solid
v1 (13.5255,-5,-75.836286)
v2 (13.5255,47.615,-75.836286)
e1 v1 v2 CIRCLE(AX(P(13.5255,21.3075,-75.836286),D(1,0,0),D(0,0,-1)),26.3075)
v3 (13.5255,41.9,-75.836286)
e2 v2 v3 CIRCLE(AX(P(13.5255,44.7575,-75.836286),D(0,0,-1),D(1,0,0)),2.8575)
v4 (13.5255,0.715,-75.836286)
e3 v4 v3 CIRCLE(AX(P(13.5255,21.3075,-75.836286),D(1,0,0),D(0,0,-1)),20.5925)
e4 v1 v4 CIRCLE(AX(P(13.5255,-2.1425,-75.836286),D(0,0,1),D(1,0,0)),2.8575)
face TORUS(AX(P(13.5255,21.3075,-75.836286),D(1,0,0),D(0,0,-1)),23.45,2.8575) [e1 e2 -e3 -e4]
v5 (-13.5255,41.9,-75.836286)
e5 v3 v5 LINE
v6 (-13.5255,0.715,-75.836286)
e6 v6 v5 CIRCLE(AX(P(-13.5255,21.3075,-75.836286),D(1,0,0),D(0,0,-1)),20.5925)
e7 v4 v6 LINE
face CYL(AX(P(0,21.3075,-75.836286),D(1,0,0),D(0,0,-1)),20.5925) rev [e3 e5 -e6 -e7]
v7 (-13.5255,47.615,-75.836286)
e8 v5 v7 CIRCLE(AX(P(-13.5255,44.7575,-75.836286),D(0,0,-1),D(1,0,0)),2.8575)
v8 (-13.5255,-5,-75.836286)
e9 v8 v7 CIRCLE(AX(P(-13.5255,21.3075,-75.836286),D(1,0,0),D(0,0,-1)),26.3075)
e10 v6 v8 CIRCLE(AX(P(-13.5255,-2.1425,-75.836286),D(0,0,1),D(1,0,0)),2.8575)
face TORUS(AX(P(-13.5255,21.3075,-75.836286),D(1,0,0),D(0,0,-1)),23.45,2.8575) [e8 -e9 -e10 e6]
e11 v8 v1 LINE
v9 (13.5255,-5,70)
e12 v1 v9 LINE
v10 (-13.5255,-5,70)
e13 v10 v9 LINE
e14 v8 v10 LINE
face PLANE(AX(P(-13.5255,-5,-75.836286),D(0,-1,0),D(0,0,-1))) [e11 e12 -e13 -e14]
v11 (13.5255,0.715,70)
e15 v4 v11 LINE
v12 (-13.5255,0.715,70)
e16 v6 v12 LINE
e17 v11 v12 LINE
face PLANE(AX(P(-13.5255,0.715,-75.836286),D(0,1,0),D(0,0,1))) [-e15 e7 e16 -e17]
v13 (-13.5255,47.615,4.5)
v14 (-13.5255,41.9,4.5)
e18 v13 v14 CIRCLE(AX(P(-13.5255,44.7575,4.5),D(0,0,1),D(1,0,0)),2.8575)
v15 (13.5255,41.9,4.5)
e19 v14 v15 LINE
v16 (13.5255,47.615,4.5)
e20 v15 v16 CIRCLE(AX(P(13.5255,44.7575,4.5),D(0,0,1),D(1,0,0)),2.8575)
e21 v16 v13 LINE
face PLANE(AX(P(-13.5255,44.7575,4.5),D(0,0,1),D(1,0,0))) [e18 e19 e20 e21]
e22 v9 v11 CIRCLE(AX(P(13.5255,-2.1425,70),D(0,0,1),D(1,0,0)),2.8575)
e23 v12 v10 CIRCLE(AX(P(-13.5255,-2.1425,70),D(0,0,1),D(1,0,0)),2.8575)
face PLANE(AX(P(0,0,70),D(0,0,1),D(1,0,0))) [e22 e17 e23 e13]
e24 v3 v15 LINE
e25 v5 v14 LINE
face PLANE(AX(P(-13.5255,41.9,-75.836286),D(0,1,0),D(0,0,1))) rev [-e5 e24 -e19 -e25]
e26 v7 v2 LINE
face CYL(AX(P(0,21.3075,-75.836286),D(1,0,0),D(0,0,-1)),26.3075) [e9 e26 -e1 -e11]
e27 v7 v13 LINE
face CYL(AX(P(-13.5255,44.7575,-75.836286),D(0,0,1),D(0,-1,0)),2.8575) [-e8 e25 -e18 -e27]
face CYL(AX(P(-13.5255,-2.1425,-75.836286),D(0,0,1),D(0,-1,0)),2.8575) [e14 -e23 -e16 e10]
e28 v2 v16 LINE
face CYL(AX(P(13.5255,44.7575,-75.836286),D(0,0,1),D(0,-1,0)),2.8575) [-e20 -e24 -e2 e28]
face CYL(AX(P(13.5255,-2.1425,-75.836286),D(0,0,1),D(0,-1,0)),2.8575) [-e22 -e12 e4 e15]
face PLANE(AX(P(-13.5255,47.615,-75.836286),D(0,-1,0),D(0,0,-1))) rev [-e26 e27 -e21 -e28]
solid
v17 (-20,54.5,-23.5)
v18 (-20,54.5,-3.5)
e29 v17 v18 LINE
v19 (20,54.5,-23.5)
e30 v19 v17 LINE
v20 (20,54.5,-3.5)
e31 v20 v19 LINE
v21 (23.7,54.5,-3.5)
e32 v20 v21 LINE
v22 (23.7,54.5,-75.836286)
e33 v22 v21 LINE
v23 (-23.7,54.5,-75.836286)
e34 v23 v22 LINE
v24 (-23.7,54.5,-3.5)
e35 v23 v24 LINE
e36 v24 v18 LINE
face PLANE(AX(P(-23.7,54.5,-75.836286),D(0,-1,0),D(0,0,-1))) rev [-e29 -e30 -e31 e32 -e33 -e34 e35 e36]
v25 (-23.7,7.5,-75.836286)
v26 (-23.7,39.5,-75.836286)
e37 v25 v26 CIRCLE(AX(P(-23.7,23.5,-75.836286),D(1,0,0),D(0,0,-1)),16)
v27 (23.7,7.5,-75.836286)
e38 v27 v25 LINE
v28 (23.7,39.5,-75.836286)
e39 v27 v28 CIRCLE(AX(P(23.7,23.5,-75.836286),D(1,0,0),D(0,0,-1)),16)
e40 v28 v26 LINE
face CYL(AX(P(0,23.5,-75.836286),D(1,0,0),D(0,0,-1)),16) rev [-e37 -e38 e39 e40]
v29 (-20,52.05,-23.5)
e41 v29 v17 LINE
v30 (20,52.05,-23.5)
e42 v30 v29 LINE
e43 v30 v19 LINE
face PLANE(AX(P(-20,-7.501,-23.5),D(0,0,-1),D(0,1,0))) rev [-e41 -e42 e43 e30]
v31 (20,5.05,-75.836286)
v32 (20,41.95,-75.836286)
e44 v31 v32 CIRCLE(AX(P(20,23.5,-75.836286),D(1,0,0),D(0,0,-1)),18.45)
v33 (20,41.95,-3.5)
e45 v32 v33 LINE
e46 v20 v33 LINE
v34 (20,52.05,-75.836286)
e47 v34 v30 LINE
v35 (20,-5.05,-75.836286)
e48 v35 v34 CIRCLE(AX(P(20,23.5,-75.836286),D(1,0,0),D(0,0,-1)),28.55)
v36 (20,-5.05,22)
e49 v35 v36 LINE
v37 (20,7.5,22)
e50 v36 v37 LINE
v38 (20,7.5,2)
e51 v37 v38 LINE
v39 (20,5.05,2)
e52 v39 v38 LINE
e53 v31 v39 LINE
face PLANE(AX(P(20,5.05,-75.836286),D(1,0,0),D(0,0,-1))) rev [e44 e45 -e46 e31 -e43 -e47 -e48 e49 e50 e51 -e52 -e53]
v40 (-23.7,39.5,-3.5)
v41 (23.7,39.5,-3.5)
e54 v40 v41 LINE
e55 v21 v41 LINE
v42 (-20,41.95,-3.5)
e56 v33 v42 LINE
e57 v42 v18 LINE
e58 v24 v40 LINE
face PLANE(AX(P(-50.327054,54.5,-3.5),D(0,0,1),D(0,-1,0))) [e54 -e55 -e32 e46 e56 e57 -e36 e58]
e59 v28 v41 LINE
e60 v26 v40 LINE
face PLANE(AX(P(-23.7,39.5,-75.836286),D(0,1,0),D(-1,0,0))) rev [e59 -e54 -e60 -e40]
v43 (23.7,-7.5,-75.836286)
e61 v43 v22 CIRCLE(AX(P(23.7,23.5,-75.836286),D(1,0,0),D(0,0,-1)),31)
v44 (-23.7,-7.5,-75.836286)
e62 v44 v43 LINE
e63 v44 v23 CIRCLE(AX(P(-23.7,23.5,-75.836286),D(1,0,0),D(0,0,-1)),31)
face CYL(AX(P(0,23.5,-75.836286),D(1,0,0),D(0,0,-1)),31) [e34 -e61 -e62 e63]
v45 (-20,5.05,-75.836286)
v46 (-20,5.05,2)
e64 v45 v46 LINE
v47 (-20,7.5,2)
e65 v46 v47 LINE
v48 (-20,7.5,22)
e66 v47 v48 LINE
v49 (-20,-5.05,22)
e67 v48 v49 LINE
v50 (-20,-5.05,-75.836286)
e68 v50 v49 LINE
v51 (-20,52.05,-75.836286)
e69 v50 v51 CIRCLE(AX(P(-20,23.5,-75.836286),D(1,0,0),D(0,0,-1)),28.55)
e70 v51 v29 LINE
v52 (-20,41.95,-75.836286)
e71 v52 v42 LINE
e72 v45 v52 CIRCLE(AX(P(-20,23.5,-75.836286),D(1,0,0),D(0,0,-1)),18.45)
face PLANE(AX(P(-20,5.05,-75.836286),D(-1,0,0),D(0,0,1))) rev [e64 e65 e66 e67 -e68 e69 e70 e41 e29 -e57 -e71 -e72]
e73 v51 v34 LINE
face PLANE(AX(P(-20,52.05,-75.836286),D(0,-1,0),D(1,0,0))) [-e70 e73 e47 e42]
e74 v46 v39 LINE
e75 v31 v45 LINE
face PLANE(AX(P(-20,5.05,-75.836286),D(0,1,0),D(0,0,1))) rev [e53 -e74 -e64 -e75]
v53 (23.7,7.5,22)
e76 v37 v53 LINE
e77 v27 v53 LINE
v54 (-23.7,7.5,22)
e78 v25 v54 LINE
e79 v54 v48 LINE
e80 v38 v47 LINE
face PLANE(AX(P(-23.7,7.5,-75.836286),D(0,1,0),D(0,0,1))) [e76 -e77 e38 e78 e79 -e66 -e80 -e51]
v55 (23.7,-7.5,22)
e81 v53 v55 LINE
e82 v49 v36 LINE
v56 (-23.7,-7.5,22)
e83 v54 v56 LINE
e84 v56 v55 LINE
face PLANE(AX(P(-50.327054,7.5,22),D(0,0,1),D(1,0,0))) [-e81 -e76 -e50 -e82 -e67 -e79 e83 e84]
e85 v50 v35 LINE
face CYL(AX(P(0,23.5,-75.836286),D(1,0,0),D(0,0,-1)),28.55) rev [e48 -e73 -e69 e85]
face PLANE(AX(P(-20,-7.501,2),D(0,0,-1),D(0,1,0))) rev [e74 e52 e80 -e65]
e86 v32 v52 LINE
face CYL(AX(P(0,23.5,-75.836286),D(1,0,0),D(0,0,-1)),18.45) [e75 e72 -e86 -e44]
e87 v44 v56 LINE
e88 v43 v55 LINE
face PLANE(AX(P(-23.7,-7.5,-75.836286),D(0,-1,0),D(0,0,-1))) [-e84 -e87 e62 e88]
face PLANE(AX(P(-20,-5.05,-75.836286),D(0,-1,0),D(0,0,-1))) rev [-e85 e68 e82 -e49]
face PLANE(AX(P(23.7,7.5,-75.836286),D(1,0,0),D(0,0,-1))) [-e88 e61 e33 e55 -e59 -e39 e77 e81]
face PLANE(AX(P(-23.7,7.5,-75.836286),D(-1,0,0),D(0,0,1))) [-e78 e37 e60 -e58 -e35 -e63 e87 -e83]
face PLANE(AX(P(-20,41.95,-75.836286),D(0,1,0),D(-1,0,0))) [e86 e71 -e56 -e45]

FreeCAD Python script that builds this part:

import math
import FreeCAD as App
import Part
import Sketcher

doc = App.newDocument("Part")
body = doc.addObject("PartDesign::Body", "Body")

# Sketch on XY plane
sketch1 = body.newObject("Sketcher::SketchObject", "Sketch")
sketch1.AttachmentSupport = (doc.getObject("XY_Plane"), [""])
sketch1.MapMode = "FlatFace"
sketch1.addGeometry([
    Part.LineSegment(App.Vector(-23.7, 7.5, 0), App.Vector(-23.7, -7.5, 0)),  # 0
    Part.LineSegment(App.Vector(-23.7, -7.5, 0), App.Vector(23.7, -7.5, 0)),  # 1
    Part.LineSegment(App.Vector(23.7, -7.5, 0), App.Vector(23.7, 7.5, 0)),  # 2
    Part.LineSegment(App.Vector(23.7, 7.5, 0), App.Vector(-23.7, 7.5, 0)),  # 3
    Part.LineSegment(App.Vector(20, -5.05, 0), App.Vector(-20, -5.05, 0)),  # 4
    Part.LineSegment(App.Vector(-20, -5.05, 0), App.Vector(-20, 5.05, 0)),  # 5
    Part.LineSegment(App.Vector(-20, 5.05, 0), App.Vector(20, 5.05, 0)),  # 6
    Part.LineSegment(App.Vector(20, 5.05, 0), App.Vector(20, -5.05, 0)),  # 7
], False)
sketch1.addConstraint([
    Sketcher.Constraint("Coincident", 0, 2, 1, 1),
    Sketcher.Constraint("Coincident", 1, 2, 2, 1),
    Sketcher.Constraint("Coincident", 2, 2, 3, 1),
    Sketcher.Constraint("Coincident", 3, 2, 0, 1),
    Sketcher.Constraint("Coincident", 4, 2, 5, 1),
    Sketcher.Constraint("Coincident", 5, 2, 6, 1),
    Sketcher.Constraint("Coincident", 6, 2, 7, 1),
    Sketcher.Constraint("Coincident", 7, 2, 4, 1),
    Sketcher.Constraint("Vertical", 0),
    Sketcher.Constraint("Horizontal", 1),
    Sketcher.Constraint("Vertical", 2),
    Sketcher.Constraint("Horizontal", 3),
    Sketcher.Constraint("Horizontal", 4),
    Sketcher.Constraint("Vertical", 5),
    Sketcher.Constraint("Horizontal", 6),
    Sketcher.Constraint("Vertical", 7),
    Sketcher.Constraint("Symmetric", 0, 2, 2, 2, -1, 1),
    Sketcher.Constraint("Symmetric", 4, 2, 6, 2, -1, 1),
    Sketcher.Constraint("DistanceX", 4, 2, 4, 1, 40.0),
    Sketcher.Constraint("DistanceY", 0, 2, 0, 1, 15.0),
    Sketcher.Constraint("DistanceX", 1, 1, 1, 2, 47.4),
    Sketcher.Constraint("DistanceY", 5, 1, 5, 2, 10.1),
])

# Sketch on YZ plane
sketch2 = body.newObject("Sketcher::SketchObject", "Sketch001")
sketch2.AttachmentSupport = (doc.getObject("YZ_Plane"), [""])
sketch2.MapMode = "FlatFace"
sketch2.addGeometry([
    Part.LineSegment(App.Vector(0, 0, 0), App.Vector(0, -75.836286, 0)),
    Part.ArcOfCircle(Part.Circle(App.Vector(23.5, -75.836286, 0), App.Vector(0, 0, 1), 23.5), math.radians(180), math.radians(360)),
    Part.LineSegment(App.Vector(47, -75.836286, 0), App.Vector(47, -25.5, 0)),
], False)
sketch2.addConstraint([
    Sketcher.Constraint("Tangent", 0, 2, 1, 1),
    Sketcher.Constraint("Tangent", 1, 2, 2, 1),
    Sketcher.Constraint("Vertical", 0),
    Sketcher.Constraint("Vertical", 2),
    Sketcher.Constraint("Coincident", 0, 1, -1, 1),
    Sketcher.Constraint("Radius", 1, 23.5),
    Sketcher.Constraint("DistanceY", 2, 2, -1, 1, 25.5),
    Sketcher.Constraint("DistanceY", 0, 2, 0, 1, 75.836286),
])
doc.recompute()

additivepipe = body.newObject("PartDesign::AdditivePipe", "AdditivePipe")
additivepipe.Profile = sketch1
additivepipe.Spine = (sketch2, ["Edge1", "Edge2", "Edge3"])

# Sketch on YZ plane
sketch3 = body.newObject("Sketcher::SketchObject", "Sketch002")
sketch3.AttachmentSupport = (doc.getObject("YZ_Plane"), [""])
sketch3.MapMode = "FlatFace"
sketch3.AttachmentOffset = App.Placement(App.Vector(0, 0, 23.7), App.Rotation())
sketch3.addGeometry([
    Part.LineSegment(App.Vector(54.5, -3.5, 0), App.Vector(39.5, -3.5, 0)),  # 0
    Part.LineSegment(App.Vector(39.5, -3.5, 0), App.Vector(39.5, -25.5, 0)),  # 1
    Part.LineSegment(App.Vector(39.5, -25.5, 0), App.Vector(54.5, -25.5, 0)),  # 2
    Part.LineSegment(App.Vector(54.5, -25.5, 0), App.Vector(54.5, -3.5, 0)),  # 3
    Part.LineSegment(App.Vector(7.5, 22, 0), App.Vector(-7.5, 22, 0)),  # 4
    Part.LineSegment(App.Vector(-7.5, 22, 0), App.Vector(-7.5, 0, 0)),  # 5
    Part.LineSegment(App.Vector(-7.5, 0, 0), App.Vector(7.5, 0, 0)),  # 6
    Part.LineSegment(App.Vector(7.5, 0, 0), App.Vector(7.5, 22, 0)),  # 7
], False)
sketch3.addConstraint([
    Sketcher.Constraint("Coincident", 0, 2, 1, 1),
    Sketcher.Constraint("Coincident", 1, 2, 2, 1),
    Sketcher.Constraint("Coincident", 2, 2, 3, 1),
    Sketcher.Constraint("Coincident", 3, 2, 0, 1),
    Sketcher.Constraint("Coincident", 4, 2, 5, 1),
    Sketcher.Constraint("Coincident", 5, 2, 6, 1),
    Sketcher.Constraint("Coincident", 6, 2, 7, 1),
    Sketcher.Constraint("Coincident", 7, 2, 4, 1),
    Sketcher.Constraint("Horizontal", 0),
    Sketcher.Constraint("Vertical", 1),
    Sketcher.Constraint("Horizontal", 2),
    Sketcher.Constraint("Vertical", 3),
    Sketcher.Constraint("Horizontal", 4),
    Sketcher.Constraint("Vertical", 5),
    Sketcher.Constraint("Horizontal", 6),
    Sketcher.Constraint("Vertical", 7),
    Sketcher.Constraint("Symmetric", 5, 2, 6, 2, -1, 1),
    Sketcher.Constraint("Equal", 2, 4),
    Sketcher.Constraint("Equal", 3, 5),
    Sketcher.Constraint("DistanceX", 0, 2, 0, 1, 15.0),
    Sketcher.Constraint("DistanceY", 1, 2, 1, 1, 22.0),
    Sketcher.Constraint("DistanceX", 4, 2, 0, 2, 47.0),
    Sketcher.Constraint("DistanceY", 0, 2, -1, 1, 3.5),
])
pad1 = body.newObject("PartDesign::Pad", "Pad")
pad1.Profile = sketch3
pad1.Length = 47.4
pad1.Reversed = True

# Sketch on XY plane
sketch4 = body.newObject("Sketcher::SketchObject", "Sketch003")
sketch4.AttachmentSupport = (doc.getObject("XY_Plane"), [""])
sketch4.MapMode = "FlatFace"
sketch4.AttachmentOffset = App.Placement(App.Vector(0, 0, 22), App.Rotation())
sketch4.addGeometry([
    Part.LineSegment(App.Vector(-20, 5.05, 0), App.Vector(-20, -5.05, 0)),
    Part.LineSegment(App.Vector(-20, -5.05, 0), App.Vector(20, -5.05, 0)),
    Part.LineSegment(App.Vector(20, -5.05, 0), App.Vector(20, 5.05, 0)),
    Part.LineSegment(App.Vector(20, 5.05, 0), App.Vector(-20, 5.05, 0)),
], False)
sketch4.addConstraint([
    Sketcher.Constraint("Coincident", 0, 2, 1, 1),
    Sketcher.Constraint("Coincident", 1, 2, 2, 1),
    Sketcher.Constraint("Coincident", 2, 2, 3, 1),
    Sketcher.Constraint("Coincident", 3, 2, 0, 1),
    Sketcher.Constraint("Vertical", 0),
    Sketcher.Constraint("Horizontal", 1),
    Sketcher.Constraint("Vertical", 2),
    Sketcher.Constraint("Horizontal", 3),
    Sketcher.Constraint("Symmetric", 0, 2, 2, 2, -1, 1),
    Sketcher.Constraint("DistanceX", 1, 1, 1, 2, 40.0),
    Sketcher.Constraint("DistanceY", 0, 2, 0, 1, 10.1),
])

# Sketch on YZ plane
sketch5 = body.newObject("Sketcher::SketchObject", "Sketch004")
sketch5.AttachmentSupport = (doc.getObject("YZ_Plane"), [""])
sketch5.MapMode = "FlatFace"
sketch5.addGeometry([
    Part.LineSegment(App.Vector(0, 22, 0), App.Vector(0, -75.836286, 0)),
    Part.ArcOfCircle(Part.Circle(App.Vector(23.5, -75.836286, 0), App.Vector(0, 0, 1), 23.5), math.radians(180), math.radians(360)),
    Part.LineSegment(App.Vector(47, -75.836286, 0), App.Vector(47, -3.5, 0)),
], False)
sketch5.addConstraint([
    Sketcher.Constraint("Tangent", 0, 2, 1, 1),
    Sketcher.Constraint("Tangent", 1, 2, 2, 1),
    Sketcher.Constraint("Vertical", 0),
    Sketcher.Constraint("Vertical", 2),
    Sketcher.Constraint("PointOnObject", 0, 1, -2),
    Sketcher.Constraint("Radius", 1, 23.5),
    Sketcher.Constraint("DistanceY", -1, 1, 0, 1, 22.0),
    Sketcher.Constraint("DistanceY", 2, 2, -1, 1, 3.5),
    Sketcher.Constraint("DistanceY", 0, 2, 0, 1, 97.836286),
])
doc.recompute()

subtractivepipe = body.newObject("PartDesign::SubtractivePipe", "SubtractivePipe")
subtractivepipe.Profile = sketch4
subtractivepipe.Spine = (sketch5, ["Edge1", "Edge2", "Edge3"])

# Sketch on XZ plane
sketch6 = body.newObject("Sketcher::SketchObject", "Sketch005")
sketch6.AttachmentSupport = (doc.getObject("XZ_Plane"), [""])
sketch6.MapMode = "FlatFace"
sketch6.AttachmentOffset = App.Placement(App.Vector(0, 0, -54.5), App.Rotation())
sketch6.addGeometry([
    Part.LineSegment(App.Vector(-20, -23.5, 0), App.Vector(-20, -3.5, 0)),
    Part.LineSegment(App.Vector(-20, -3.5, 0), App.Vector(20, -3.5, 0)),
    Part.LineSegment(App.Vector(20, -3.5, 0), App.Vector(20, -23.5, 0)),
    Part.LineSegment(App.Vector(20, -23.5, 0), App.Vector(-20, -23.5, 0)),
], False)
sketch6.addConstraint([
    Sketcher.Constraint("Coincident", 0, 2, 1, 1),
    Sketcher.Constraint("Coincident", 1, 2, 2, 1),
    Sketcher.Constraint("Coincident", 2, 2, 3, 1),
    Sketcher.Constraint("Coincident", 3, 2, 0, 1),
    Sketcher.Constraint("Vertical", 0),
    Sketcher.Constraint("Horizontal", 1),
    Sketcher.Constraint("Vertical", 2),
    Sketcher.Constraint("Horizontal", 3),
    Sketcher.Constraint("DistanceX", 1, 1, 1, 2, 40.0),
    Sketcher.Constraint("DistanceY", 0, 1, 0, 2, 20.0),
    Sketcher.Constraint("DistanceX", 0, 2, -1, 1, 20.0),
    Sketcher.Constraint("DistanceY", 0, 2, -1, 1, 3.5),
])
pocket1 = body.newObject("PartDesign::Pocket", "Pocket")
pocket1.Profile = sketch6
pocket1.Type = "UpToFirst"
pocket1.Reversed = True

# Sketch on XZ plane
sketch7 = body.newObject("Sketcher::SketchObject", "Sketch006")
sketch7.AttachmentSupport = (doc.getObject("XZ_Plane"), [""])
sketch7.MapMode = "FlatFace"
sketch7.AttachmentOffset = App.Placement(App.Vector(0, 0, -7.5), App.Rotation())
sketch7.addGeometry([
    Part.LineSegment(App.Vector(-20, 2, 0), App.Vector(-20, 22, 0)),
    Part.LineSegment(App.Vector(-20, 22, 0), App.Vector(20, 22, 0)),
    Part.LineSegment(App.Vector(20, 22, 0), App.Vector(20, 2, 0)),
    Part.LineSegment(App.Vector(20, 2, 0), App.Vector(-20, 2, 0)),
], False)
sketch7.addConstraint([
    Sketcher.Constraint("Coincident", 0, 2, 1, 1),
    Sketcher.Constraint("Coincident", 1, 2, 2, 1),
    Sketcher.Constraint("Coincident", 2, 2, 3, 1),
    Sketcher.Constraint("Coincident", 3, 2, 0, 1),
    Sketcher.Constraint("Vertical", 0),
    Sketcher.Constraint("Horizontal", 1),
    Sketcher.Constraint("Vertical", 2),
    Sketcher.Constraint("Horizontal", 3),
    Sketcher.Constraint("DistanceX", 1, 1, 1, 2, 40.0),
    Sketcher.Constraint("DistanceY", 0, 1, 0, 2, 20.0),
    Sketcher.Constraint("DistanceX", 0, 2, -1, 1, 20.0),
    Sketcher.Constraint("DistanceY", -1, 1, 0, 2, 22.0),
])
pocket2 = body.newObject("PartDesign::Pocket", "Pocket001")
pocket2.Profile = sketch7
pocket2.Type = "UpToFirst"
pocket2.Reversed = True
body2 = doc.addObject("PartDesign::Body", "Body001")

# Sketch on XY plane
sketch8 = body2.newObject("Sketcher::SketchObject", "Sketch007")
sketch8.AttachmentSupport = (doc.getObject("XY_Plane001"), [""])
sketch8.MapMode = "FlatFace"
sketch8.addGeometry([
    Part.LineSegment(App.Vector(13.5255, 0.715, 0), App.Vector(-13.5255, 0.715, 0)),
    Part.ArcOfCircle(Part.Circle(App.Vector(-13.5255, -2.1425, 0), App.Vector(0, 0, 1), 2.8575), math.radians(90), math.radians(270)),
    Part.LineSegment(App.Vector(-13.5255, -5, 0), App.Vector(13.5255, -5, 0)),
    Part.ArcOfCircle(Part.Circle(App.Vector(13.5255, -2.1425, 0), App.Vector(0, 0, 1), 2.8575), math.radians(-90), math.radians(90)),
], False)
sketch8.addConstraint([
    Sketcher.Constraint("Tangent", 0, 2, 1, 1),
    Sketcher.Constraint("Tangent", 1, 2, 2, 1),
    Sketcher.Constraint("Tangent", 2, 2, 3, 1),
    Sketcher.Constraint("Tangent", 3, 2, 0, 1),
    Sketcher.Constraint("Horizontal", 0),
    Sketcher.Constraint("Horizontal", 2),
    Sketcher.Constraint("DistanceY", 1, 2, -1, 1, 5.0),
    Sketcher.Constraint("Radius", 1, 2.8575),
    Sketcher.Constraint("DistanceX", 0, 2, 0, 1, 27.051),
    Sketcher.Constraint("DistanceX", 1, 3, -1, 1, 13.5255),
])

# Sketch on YZ plane
sketch9 = body2.newObject("Sketcher::SketchObject", "Sketch008")
sketch9.AttachmentSupport = (doc.getObject("YZ_Plane001"), [""])
sketch9.MapMode = "FlatFace"
sketch9.addGeometry([
    Part.LineSegment(App.Vector(-2.1925, 0, 0), App.Vector(-2.1925, -75.836286, 0)),
    Part.ArcOfCircle(Part.Circle(App.Vector(21.3075, -75.836286, 0), App.Vector(0, 0, 1), 23.5), math.radians(180), math.radians(360)),
    Part.LineSegment(App.Vector(44.8075, -75.836286, 0), App.Vector(44.8075, -25.5, 0)),
], False)
sketch9.addConstraint([
    Sketcher.Constraint("Tangent", 0, 2, 1, 1),
    Sketcher.Constraint("Tangent", 1, 2, 2, 1),
    Sketcher.Constraint("Vertical", 0),
    Sketcher.Constraint("Vertical", 2),
    Sketcher.Constraint("PointOnObject", 0, 1, -1),
    Sketcher.Constraint("Radius", 1, 23.5),
    Sketcher.Constraint("DistanceY", 2, 2, -1, 1, 25.5),
    Sketcher.Constraint("DistanceX", -1, 1, 1, 3, 21.3075),
    Sketcher.Constraint("DistanceY", 0, 2, 0, 1, 75.836286),
])
doc.recompute()

additivepipe2 = body2.newObject("PartDesign::AdditivePipe", "AdditivePipe001")
additivepipe2.Profile = sketch8
additivepipe2.Spine = (sketch9, ["Edge1", "Edge2", "Edge3"])

# Sketch on XY plane
sketch10 = body2.newObject("Sketcher::SketchObject", "Sketch009")
sketch10.AttachmentSupport = (doc.getObject("XY_Plane001"), [""])
sketch10.MapMode = "FlatFace"
sketch10.addGeometry([
    Part.LineSegment(App.Vector(13.5255, 0.715, 0), App.Vector(-13.5255, 0.715, 0)),
    Part.ArcOfCircle(Part.Circle(App.Vector(-13.5255, -2.1425, 0), App.Vector(0, 0, 1), 2.8575), math.radians(90), math.radians(270)),
    Part.LineSegment(App.Vector(-13.5255, -5, 0), App.Vector(13.5255, -5, 0)),
    Part.ArcOfCircle(Part.Circle(App.Vector(13.5255, -2.1425, 0), App.Vector(0, 0, 1), 2.8575), math.radians(-90), math.radians(90)),
], False)
sketch10.addConstraint([
    Sketcher.Constraint("Tangent", 0, 2, 1, 1),
    Sketcher.Constraint("Tangent", 1, 2, 2, 1),
    Sketcher.Constraint("Tangent", 2, 2, 3, 1),
    Sketcher.Constraint("Tangent", 3, 2, 0, 1),
    Sketcher.Constraint("Horizontal", 0),
    Sketcher.Constraint("Horizontal", 2),
    Sketcher.Constraint("DistanceY", 1, 2, -1, 1, 5.0),
    Sketcher.Constraint("Radius", 1, 2.8575),
    Sketcher.Constraint("DistanceX", 0, 2, 0, 1, 27.051),
    Sketcher.Constraint("DistanceX", 1, 3, -1, 1, 13.5255),
])
pad2 = body2.newObject("PartDesign::Pad", "Pad001")
pad2.Profile = sketch10
pad2.Length = 70

# Sketch on XY plane
sketch11 = body2.newObject("Sketcher::SketchObject", "Sketch010")
sketch11.AttachmentSupport = (doc.getObject("XY_Plane001"), [""])
sketch11.MapMode = "FlatFace"
sketch11.AttachmentOffset = App.Placement(App.Vector(0, 0, -25.5), App.Rotation())
sketch11.addGeometry([
    Part.LineSegment(App.Vector(-13.5255, 41.9, 0), App.Vector(13.5255, 41.9, 0)),
    Part.ArcOfCircle(Part.Circle(App.Vector(13.5255, 44.7575, 0), App.Vector(0, 0, 1), 2.8575), math.radians(-90), math.radians(90)),
    Part.LineSegment(App.Vector(13.5255, 47.615, 0), App.Vector(-13.5255, 47.615, 0)),
    Part.ArcOfCircle(Part.Circle(App.Vector(-13.5255, 44.7575, 0), App.Vector(0, 0, 1), 2.8575), math.radians(90), math.radians(270)),
], False)
sketch11.addConstraint([
    Sketcher.Constraint("Tangent", 0, 2, 1, 1),
    Sketcher.Constraint("Tangent", 1, 2, 2, 1),
    Sketcher.Constraint("Tangent", 2, 2, 3, 1),
    Sketcher.Constraint("Tangent", 3, 2, 0, 1),
    Sketcher.Constraint("Horizontal", 0),
    Sketcher.Constraint("Horizontal", 2),
    Sketcher.Constraint("DistanceY", -1, 1, 0, 2, 41.9),
    Sketcher.Constraint("Radius", 1, 2.8575),
    Sketcher.Constraint("DistanceX", 0, 1, 0, 2, 27.051),
    Sketcher.Constraint("DistanceX", -1, 1, 1, 3, 13.5255),
])
pad3 = body2.newObject("PartDesign::Pad", "Pad002")
pad3.Profile = sketch11
pad3.Length = 30

doc.recompute()
